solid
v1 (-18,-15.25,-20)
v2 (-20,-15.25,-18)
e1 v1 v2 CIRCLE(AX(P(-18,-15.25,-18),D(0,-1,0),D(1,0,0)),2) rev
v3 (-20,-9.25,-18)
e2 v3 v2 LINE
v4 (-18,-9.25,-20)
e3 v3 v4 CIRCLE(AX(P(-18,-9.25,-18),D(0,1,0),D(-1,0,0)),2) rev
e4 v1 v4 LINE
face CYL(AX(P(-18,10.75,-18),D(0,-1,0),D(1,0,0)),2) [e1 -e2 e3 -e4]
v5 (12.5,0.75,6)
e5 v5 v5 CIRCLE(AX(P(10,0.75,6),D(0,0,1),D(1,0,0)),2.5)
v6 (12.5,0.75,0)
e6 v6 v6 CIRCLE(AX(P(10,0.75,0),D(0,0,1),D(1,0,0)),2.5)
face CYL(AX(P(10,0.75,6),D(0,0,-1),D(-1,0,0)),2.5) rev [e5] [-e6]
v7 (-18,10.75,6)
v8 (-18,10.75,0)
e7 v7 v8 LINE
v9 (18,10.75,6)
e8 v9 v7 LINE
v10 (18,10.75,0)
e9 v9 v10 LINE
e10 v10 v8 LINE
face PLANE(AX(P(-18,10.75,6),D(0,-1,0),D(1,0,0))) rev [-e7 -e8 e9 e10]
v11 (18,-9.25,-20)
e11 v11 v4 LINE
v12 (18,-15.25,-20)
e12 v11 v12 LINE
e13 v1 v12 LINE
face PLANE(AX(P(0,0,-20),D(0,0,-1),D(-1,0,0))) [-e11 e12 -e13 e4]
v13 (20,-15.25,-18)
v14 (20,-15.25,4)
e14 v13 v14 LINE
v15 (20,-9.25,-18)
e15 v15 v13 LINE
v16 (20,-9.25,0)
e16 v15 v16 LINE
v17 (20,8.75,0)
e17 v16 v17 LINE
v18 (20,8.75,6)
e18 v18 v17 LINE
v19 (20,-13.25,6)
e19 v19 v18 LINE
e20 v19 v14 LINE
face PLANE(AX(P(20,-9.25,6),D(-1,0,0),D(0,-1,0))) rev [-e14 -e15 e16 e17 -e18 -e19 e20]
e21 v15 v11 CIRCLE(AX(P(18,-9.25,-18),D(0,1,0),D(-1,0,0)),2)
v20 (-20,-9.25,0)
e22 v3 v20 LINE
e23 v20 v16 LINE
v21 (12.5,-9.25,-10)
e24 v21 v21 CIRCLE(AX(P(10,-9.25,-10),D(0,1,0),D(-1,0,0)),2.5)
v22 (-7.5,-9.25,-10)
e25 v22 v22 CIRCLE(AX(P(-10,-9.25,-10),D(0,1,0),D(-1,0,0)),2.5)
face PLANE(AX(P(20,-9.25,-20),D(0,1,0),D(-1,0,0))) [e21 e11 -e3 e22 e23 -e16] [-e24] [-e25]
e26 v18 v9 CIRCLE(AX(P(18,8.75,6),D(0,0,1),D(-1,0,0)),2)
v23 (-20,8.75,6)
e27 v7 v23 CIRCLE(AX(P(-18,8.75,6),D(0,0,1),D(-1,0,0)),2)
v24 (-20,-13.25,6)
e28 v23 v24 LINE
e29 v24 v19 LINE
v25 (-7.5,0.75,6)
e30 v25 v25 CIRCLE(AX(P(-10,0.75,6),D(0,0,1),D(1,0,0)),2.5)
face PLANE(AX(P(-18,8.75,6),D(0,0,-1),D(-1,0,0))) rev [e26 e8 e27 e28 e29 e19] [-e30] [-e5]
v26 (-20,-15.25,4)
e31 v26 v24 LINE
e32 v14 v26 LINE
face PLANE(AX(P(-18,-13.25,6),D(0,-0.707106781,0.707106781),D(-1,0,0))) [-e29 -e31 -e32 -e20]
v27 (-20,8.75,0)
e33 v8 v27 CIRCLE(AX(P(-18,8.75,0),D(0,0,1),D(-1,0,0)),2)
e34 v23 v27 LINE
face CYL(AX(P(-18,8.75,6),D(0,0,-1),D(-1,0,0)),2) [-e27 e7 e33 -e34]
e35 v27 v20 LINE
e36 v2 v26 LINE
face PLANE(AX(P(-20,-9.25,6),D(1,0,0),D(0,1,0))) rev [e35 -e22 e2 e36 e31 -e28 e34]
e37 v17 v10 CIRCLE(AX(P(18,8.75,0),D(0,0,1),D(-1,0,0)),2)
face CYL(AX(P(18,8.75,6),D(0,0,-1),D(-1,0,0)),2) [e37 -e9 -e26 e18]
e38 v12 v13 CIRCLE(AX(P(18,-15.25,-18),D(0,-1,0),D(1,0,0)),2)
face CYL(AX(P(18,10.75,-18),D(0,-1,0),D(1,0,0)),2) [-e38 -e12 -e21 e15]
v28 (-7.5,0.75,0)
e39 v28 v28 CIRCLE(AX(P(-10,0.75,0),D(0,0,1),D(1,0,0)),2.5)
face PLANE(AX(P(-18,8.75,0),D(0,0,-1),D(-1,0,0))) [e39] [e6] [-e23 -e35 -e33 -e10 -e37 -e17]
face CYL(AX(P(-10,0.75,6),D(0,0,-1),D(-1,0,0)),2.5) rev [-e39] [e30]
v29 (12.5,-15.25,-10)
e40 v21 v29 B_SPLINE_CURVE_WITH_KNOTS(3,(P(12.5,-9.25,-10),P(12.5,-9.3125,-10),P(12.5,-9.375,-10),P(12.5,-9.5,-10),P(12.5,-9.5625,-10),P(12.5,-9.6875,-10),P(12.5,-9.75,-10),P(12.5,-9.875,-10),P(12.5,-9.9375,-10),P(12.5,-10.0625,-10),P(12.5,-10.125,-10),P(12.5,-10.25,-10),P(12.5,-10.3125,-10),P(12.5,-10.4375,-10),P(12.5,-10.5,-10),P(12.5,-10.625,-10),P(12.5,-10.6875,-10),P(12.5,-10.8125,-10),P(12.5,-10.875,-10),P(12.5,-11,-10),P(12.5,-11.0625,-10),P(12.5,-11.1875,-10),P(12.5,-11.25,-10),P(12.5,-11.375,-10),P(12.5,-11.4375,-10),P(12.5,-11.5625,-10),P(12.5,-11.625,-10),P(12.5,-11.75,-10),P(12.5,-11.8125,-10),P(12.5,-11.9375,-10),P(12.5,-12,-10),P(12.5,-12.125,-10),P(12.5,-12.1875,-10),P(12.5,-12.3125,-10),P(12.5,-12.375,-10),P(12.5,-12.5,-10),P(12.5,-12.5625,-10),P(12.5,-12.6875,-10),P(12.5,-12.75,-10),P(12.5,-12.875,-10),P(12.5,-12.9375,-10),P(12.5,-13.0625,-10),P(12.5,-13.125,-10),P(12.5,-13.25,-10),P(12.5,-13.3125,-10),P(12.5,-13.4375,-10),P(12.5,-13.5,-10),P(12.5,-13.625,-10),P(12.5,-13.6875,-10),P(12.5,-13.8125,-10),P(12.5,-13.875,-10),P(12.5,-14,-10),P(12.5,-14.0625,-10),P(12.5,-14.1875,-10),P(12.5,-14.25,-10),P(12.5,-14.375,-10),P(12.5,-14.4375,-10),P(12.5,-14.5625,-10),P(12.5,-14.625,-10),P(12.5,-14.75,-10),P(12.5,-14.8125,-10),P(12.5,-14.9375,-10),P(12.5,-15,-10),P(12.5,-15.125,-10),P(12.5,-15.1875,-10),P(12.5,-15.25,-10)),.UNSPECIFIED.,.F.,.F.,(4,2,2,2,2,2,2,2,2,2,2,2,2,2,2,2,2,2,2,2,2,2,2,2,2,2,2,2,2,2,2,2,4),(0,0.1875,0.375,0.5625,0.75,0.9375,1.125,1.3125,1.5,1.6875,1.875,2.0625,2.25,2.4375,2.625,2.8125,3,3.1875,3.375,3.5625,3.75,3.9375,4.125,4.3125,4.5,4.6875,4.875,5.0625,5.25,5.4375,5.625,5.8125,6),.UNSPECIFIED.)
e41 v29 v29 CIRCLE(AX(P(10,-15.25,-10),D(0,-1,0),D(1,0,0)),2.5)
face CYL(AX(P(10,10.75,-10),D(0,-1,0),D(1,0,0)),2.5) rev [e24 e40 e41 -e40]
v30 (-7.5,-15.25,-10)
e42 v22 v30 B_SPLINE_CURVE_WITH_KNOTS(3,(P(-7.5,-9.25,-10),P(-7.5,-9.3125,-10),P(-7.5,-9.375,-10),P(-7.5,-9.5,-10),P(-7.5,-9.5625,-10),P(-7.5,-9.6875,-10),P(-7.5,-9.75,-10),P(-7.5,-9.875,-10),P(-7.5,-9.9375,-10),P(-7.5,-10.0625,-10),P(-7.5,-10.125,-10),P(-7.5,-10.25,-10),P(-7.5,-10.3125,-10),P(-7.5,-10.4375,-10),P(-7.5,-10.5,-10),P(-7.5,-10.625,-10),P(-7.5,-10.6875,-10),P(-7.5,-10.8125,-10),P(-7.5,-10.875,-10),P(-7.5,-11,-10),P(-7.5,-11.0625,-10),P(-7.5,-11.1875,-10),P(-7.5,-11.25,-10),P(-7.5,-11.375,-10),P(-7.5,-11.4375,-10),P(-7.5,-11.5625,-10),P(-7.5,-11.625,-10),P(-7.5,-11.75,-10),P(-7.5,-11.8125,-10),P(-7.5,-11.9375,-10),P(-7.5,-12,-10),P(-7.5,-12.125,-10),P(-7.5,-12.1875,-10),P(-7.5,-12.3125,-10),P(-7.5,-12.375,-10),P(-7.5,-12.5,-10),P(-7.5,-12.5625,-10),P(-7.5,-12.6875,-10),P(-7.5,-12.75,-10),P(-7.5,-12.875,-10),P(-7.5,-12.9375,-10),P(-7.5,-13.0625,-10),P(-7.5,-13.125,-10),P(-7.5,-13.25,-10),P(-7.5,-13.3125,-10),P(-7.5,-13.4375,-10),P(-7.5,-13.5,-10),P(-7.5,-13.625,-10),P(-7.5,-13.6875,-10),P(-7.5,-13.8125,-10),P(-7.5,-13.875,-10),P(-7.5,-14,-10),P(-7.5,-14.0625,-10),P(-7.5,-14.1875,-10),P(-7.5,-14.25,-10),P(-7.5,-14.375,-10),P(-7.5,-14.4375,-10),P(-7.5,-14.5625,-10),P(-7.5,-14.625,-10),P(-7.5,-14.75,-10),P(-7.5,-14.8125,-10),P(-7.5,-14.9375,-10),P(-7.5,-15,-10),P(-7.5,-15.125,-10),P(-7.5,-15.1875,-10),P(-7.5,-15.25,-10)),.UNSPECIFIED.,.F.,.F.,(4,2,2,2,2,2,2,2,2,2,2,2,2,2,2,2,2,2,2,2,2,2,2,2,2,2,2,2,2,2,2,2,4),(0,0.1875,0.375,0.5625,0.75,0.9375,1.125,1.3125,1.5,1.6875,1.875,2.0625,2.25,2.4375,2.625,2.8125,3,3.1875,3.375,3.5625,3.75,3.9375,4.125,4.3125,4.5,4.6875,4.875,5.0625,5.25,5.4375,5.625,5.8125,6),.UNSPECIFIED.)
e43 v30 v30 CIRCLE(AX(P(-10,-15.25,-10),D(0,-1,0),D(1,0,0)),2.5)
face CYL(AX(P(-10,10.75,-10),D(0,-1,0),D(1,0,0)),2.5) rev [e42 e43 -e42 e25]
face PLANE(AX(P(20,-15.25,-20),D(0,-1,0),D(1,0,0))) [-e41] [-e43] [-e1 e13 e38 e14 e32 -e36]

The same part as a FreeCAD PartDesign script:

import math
import FreeCAD as App
import Part
import Sketcher
from FreeCAD import Vector


def edges_at(feature, points):
    """Names of the edges that pass closest to the given points."""
    edges = feature.Shape.Edges
    near = lambda p: min(range(len(edges)), key=lambda i: edges[i].distToShape(Part.Vertex(*p))[0])
    return sorted({f"Edge{near(p) + 1}" for p in points})

doc = App.newDocument("Part")
params = doc.addObject("Spreadsheet::Sheet", "Params")
for row, (alias, value) in enumerate([
    ("sketch1_diameter", "5 mm"),
    ("sketch1_radius", "2 mm"),
    ("sketch1_width", "40 mm"),
    ("sketch1_height", "18 mm"),
    ("pad1_length", "6 mm"),
    ("sketch2_width", "40 mm"),
    ("sketch2_height", "6 mm"),
    ("pad2_length", "26 mm"),
    ("sketch3_diameter", "5 mm"),
    ("sketch3_radius", "2 mm"),
    ("pocket1_length", "26 mm"),
    ("chamfer_size", "2 mm"),
], start=1):
    params.set(f"A{row}", alias)
    params.set(f"B{row}", "=" + value)
    params.setAlias(f"B{row}", alias)

body = doc.addObject("PartDesign::Body", "Body")

# Sketch on XY plane
sketch1 = body.newObject("Sketcher::SketchObject", "Sketch")
sketch1.AttachmentSupport = (doc.getObject("XY_Plane"), [""])
sketch1.MapMode = "FlatFace"
sketch1.addGeometry([
    Part.LineSegment(Vector(-20, -9.25, 0), Vector(20, -9.25, 0)),  # 0
    Part.LineSegment(Vector(20, -9.25, 0), Vector(20, 8.75, 0)),  # 1
    Part.ArcOfCircle(Part.Circle(Vector(18, 8.75, 0), Vector(0, 0, 1), 2), math.radians(0), math.radians(90)),  # 2
    Part.LineSegment(Vector(18, 10.75, 0), Vector(-18, 10.75, 0)),  # 3
    Part.ArcOfCircle(Part.Circle(Vector(-18, 8.75, 0), Vector(0, 0, 1), 2), math.radians(90), math.radians(180)),  # 4
    Part.LineSegment(Vector(-20, 8.75, 0), Vector(-20, -9.25, 0)),  # 5
    Part.Circle(Vector(-10, 0.75, 0), Vector(0, 0, 1), 2.5),  # 6
    Part.Circle(Vector(10, 0.75, 0), Vector(0, 0, 1), 2.5),  # 7
], False)
sketch1.addConstraint([
    Sketcher.Constraint("Coincident", 0, 2, 1, 1),
    Sketcher.Constraint("Tangent", 1, 2, 2, 1),
    Sketcher.Constraint("Tangent", 2, 2, 3, 1),
    Sketcher.Constraint("Tangent", 3, 2, 4, 1),
    Sketcher.Constraint("Tangent", 4, 2, 5, 1),
    Sketcher.Constraint("Coincident", 5, 2, 0, 1),
    Sketcher.Constraint("Horizontal", 0),
    Sketcher.Constraint("Vertical", 1),
    Sketcher.Constraint("Horizontal", 3),
    Sketcher.Constraint("Vertical", 5),
    Sketcher.Constraint("Equal", 2, 4),
    Sketcher.Constraint("Equal", 6, 7),
    Sketcher.Constraint("Symmetric", 6, 3, 7, 3, -2),
    Sketcher.Constraint("Diameter", 6, 5.0),
    Sketcher.Constraint("Radius", 2, 2.0),
    Sketcher.Constraint("DistanceX", 0, 1, 0, 2, 40.0),
    Sketcher.Constraint("DistanceY", 1, 1, 1, 2, 18.0),
    Sketcher.Constraint("DistanceX", -1, 1, 2, 3, 18.0),
    Sketcher.Constraint("DistanceX", 6, 3, -1, 1, 10.0),
    Sketcher.Constraint("DistanceY", 6, 3, 4, 3, 8.0),
    Sketcher.Constraint("DistanceY", -1, 1, 2, 3, 8.75),
])
sketch1.setExpression("Constraints[13]", "Params.sketch1_diameter")
sketch1.setExpression("Constraints[14]", "Params.sketch1_radius")
sketch1.setExpression("Constraints[15]", "Params.sketch1_width")
sketch1.setExpression("Constraints[16]", "Params.sketch1_height")
pad1 = body.newObject("PartDesign::Pad", "Pad")
pad1.Profile = sketch1
pad1.setExpression("Length", "Params.pad1_length")

# Sketch on XY plane
sketch2 = body.newObject("Sketcher::SketchObject", "Sketch001")
sketch2.AttachmentSupport = (doc.getObject("XY_Plane"), [""])
sketch2.MapMode = "FlatFace"
sketch2.AttachmentOffset = App.Placement(Vector(0, 0, 6), App.Rotation())
sketch2.addGeometry([
    Part.LineSegment(Vector(-20, -9.25, 0), Vector(-20, -15.25, 0)),
    Part.LineSegment(Vector(-20, -15.25, 0), Vector(20, -15.25, 0)),
    Part.LineSegment(Vector(20, -15.25, 0), Vector(20, -9.25, 0)),
    Part.LineSegment(Vector(20, -9.25, 0), Vector(-20, -9.25, 0)),
], False)
sketch2.addConstraint([
    Sketcher.Constraint("Coincident", 0, 2, 1, 1),
    Sketcher.Constraint("Coincident", 1, 2, 2, 1),
    Sketcher.Constraint("Coincident", 2, 2, 3, 1),
    Sketcher.Constraint("Coincident", 3, 2, 0, 1),
    Sketcher.Constraint("Vertical", 0),
    Sketcher.Constraint("Horizontal", 1),
    Sketcher.Constraint("Vertical", 2),
    Sketcher.Constraint("Horizontal", 3),
    Sketcher.Constraint("DistanceX", 1, 1, 1, 2, 40.0),
    Sketcher.Constraint("DistanceY", 0, 2, 0, 1, 6.0),
    Sketcher.Constraint("DistanceX", 0, 2, -1, 1, 20.0),
    Sketcher.Constraint("DistanceY", 0, 2, -1, 1, 15.25),
])
sketch2.setExpression("Constraints[8]", "Params.sketch2_width")
sketch2.setExpression("Constraints[9]", "Params.sketch2_height")
pad2 = body.newObject("PartDesign::Pad", "Pad001")
pad2.Profile = sketch2
pad2.setExpression("Length", "Params.pad2_length")
pad2.Reversed = True

# Sketch on XZ plane
sketch3 = body.newObject("Sketcher::SketchObject", "Sketch002")
sketch3.AttachmentSupport = (doc.getObject("XZ_Plane"), [""])
sketch3.MapMode = "FlatFace"
sketch3.AttachmentOffset = App.Placement(Vector(0, 0, 15.25), App.Rotation())
sketch3.addGeometry([
    Part.Circle(Vector(-10, -10, 0), Vector(0, 0, 1), 2.5),  # 0
    Part.Circle(Vector(10, -10, 0), Vector(0, 0, 1), 2.5),  # 1
    Part.LineSegment(Vector(-20, -20, 0), Vector(-18, -20, 0)),  # 2
    Part.ArcOfCircle(Part.Circle(Vector(-18, -18, 0), Vector(0, 0, 1), 2), math.radians(-180), math.radians(-90)),  # 3
    Part.LineSegment(Vector(-20, -18, 0), Vector(-20, -20, 0)),  # 4
    Part.ArcOfCircle(Part.Circle(Vector(18, -18, 0), Vector(0, 0, 1), 2), math.radians(-90), math.radians(0)),  # 5
    Part.LineSegment(Vector(18, -20, 0), Vector(20, -20, 0)),  # 6
    Part.LineSegment(Vector(20, -20, 0), Vector(20, -18, 0)),  # 7
], False)
sketch3.addConstraint([
    Sketcher.Constraint("Tangent", 2, 2, 3, 2),
    Sketcher.Constraint("Tangent", 3, 1, 4, 1),
    Sketcher.Constraint("Coincident", 4, 2, 2, 1),
    Sketcher.Constraint("Tangent", 5, 1, 6, 1),
    Sketcher.Constraint("Coincident", 6, 2, 7, 1),
    Sketcher.Constraint("Tangent", 7, 2, 5, 2),
    Sketcher.Constraint("Horizontal", 2),
    Sketcher.Constraint("Vertical", 4),
    Sketcher.Constraint("Horizontal", 6),
    Sketcher.Constraint("Vertical", 7),
    Sketcher.Constraint("Equal", 0, 1),
    Sketcher.Constraint("Equal", 3, 5),
    Sketcher.Constraint("Symmetric", 0, 3, 1, 3, -2),
    Sketcher.Constraint("Symmetric", 3, 3, 5, 3, -2),
    Sketcher.Constraint("Diameter", 0, 5.0),
    Sketcher.Constraint("Radius", 3, 2.0),
    Sketcher.Constraint("DistanceX", 0, 3, -1, 1, 10.0),
    Sketcher.Constraint("DistanceY", 0, 3, -1, 1, 10.0),
    Sketcher.Constraint("DistanceX", 3, 3, -1, 1, 18.0),
    Sketcher.Constraint("DistanceY", 3, 3, -1, 1, 18.0),
])
sketch3.setExpression("Constraints[14]", "Params.sketch3_diameter")
sketch3.setExpression("Constraints[15]", "Params.sketch3_radius")
pocket1 = body.newObject("PartDesign::Pocket", "Pocket")
pocket1.Profile = sketch3
pocket1.setExpression("Length", "Params.pocket1_length")
doc.recompute()

chamfer = body.newObject("PartDesign::Chamfer", "Chamfer")
chamfer.Base = (pocket1, edges_at(pocket1, [(0, -15.25, 6)]))
chamfer.setExpression("Size", "Params.chamfer_size")

doc.recompute()
